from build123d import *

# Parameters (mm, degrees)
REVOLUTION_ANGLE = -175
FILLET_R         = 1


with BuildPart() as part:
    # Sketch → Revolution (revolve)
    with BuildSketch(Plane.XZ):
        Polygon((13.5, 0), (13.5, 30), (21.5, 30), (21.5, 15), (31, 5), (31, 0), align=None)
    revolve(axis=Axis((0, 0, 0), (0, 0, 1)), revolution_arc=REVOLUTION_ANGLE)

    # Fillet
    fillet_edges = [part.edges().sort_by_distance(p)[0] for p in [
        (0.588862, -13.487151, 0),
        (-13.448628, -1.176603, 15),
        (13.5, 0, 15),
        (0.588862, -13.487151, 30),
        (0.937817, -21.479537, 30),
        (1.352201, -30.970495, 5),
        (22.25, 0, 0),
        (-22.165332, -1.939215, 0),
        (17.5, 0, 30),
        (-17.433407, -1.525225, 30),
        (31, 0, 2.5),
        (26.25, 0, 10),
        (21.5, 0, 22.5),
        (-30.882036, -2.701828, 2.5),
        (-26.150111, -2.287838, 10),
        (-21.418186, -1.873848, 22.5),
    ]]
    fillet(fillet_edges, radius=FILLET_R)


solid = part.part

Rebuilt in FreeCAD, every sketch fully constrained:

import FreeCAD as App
import Part
import Sketcher
Q = App.Units.Quantity


def edges_at(feature, points):
    """Names of the edges that pass closest to the given points."""
    edges = feature.Shape.Edges
    near = lambda p: min(range(len(edges)), key=lambda i: edges[i].distToShape(Part.Vertex(*p))[0])
    return sorted({f"Edge{near(p) + 1}" for p in points})

doc = App.newDocument("Part")
body = doc.addObject("PartDesign::Body", "Body")

# Sketch on XZ plane
sketch1 = body.newObject("Sketcher::SketchObject", "Sketch")
sketch1.AttachmentSupport = (doc.getObject("XZ_Plane"), [""])
sketch1.MapMode = "FlatFace"
sketch1.addGeometry([
    Part.LineSegment(App.Vector(14, 30, 0), App.Vector(14, 0, 0)),  # 0
    Part.LineSegment(App.Vector(14, 0, 0), App.Vector(31, 0, 0)),  # 1
    Part.LineSegment(App.Vector(31, 0, 0), App.Vector(31, 5, 0)),  # 2
    Part.LineSegment(App.Vector(31, 5, 0), App.Vector(22, 15, 0)),  # 3
    Part.LineSegment(App.Vector(22, 15, 0), App.Vector(22, 30, 0)),  # 4
    Part.LineSegment(App.Vector(22, 30, 0), App.Vector(14, 30, 0)),  # 5
], False)
sketch1.addConstraint([
    Sketcher.Constraint("Coincident", 0, 2, 1, 1),
    Sketcher.Constraint("Coincident", 1, 2, 2, 1),
    Sketcher.Constraint("Coincident", 2, 2, 3, 1),
    Sketcher.Constraint("Coincident", 3, 2, 4, 1),
    Sketcher.Constraint("Coincident", 4, 2, 5, 1),
    Sketcher.Constraint("Coincident", 5, 2, 0, 1),
    Sketcher.Constraint("Vertical", 0),
    Sketcher.Constraint("Horizontal", 1),
    Sketcher.Constraint("Vertical", 2),
    Sketcher.Constraint("Vertical", 4),
    Sketcher.Constraint("Horizontal", 5),
    Sketcher.Constraint("PointOnObject", 0, 2, -1),
    Sketcher.Constraint("DistanceX", 5, 2, 5, 1, Q("8 mm")),
    Sketcher.Constraint("DistanceY", 0, 2, 0, 1, Q("30 mm")),
    Sketcher.Constraint("DistanceY", 2, 1, 2, 2, Q("5 mm")),
    Sketcher.Constraint("DistanceY", 4, 1, 4, 2, Q("15 mm")),
    Sketcher.Constraint("DistanceX", 1, 1, 1, 2, Q("17.5 mm")),
    Sketcher.Constraint("DistanceX", -1, 1, 1, 2, Q("31 mm")),
])
revolution = body.newObject("PartDesign::Revolution", "Revolution")
revolution.Profile = sketch1
revolution.ReferenceAxis = (sketch1, ["V_Axis"])
revolution.Angle = 175
revolution.Reversed = True
doc.recompute()

fillet = body.newObject("PartDesign::Fillet", "Fillet")
fillet.Base = (revolution, edges_at(revolution, [
    (0.589, -13.487, 0),
    (-13.449, -1.177, 15),
    (13.5, 0, 15),
    (0.589, -13.487, 30),
    (0.938, -21.48, 30),
    (1.352, -30.97, 5),
    (22.25, 0, 0),
    (-22.165, -1.939, 0),
    (17.5, 0, 30),
    (-17.433, -1.525, 30),
    (31, 0, 2.5),
    (26.25, 0, 10),
    (21.5, 0, 22.5),
    (-30.882, -2.702, 2.5),
    (-26.15, -2.288, 10),
    (-21.418, -1.874, 22.5),
]))
fillet.Radius = 1

doc.recompute()
